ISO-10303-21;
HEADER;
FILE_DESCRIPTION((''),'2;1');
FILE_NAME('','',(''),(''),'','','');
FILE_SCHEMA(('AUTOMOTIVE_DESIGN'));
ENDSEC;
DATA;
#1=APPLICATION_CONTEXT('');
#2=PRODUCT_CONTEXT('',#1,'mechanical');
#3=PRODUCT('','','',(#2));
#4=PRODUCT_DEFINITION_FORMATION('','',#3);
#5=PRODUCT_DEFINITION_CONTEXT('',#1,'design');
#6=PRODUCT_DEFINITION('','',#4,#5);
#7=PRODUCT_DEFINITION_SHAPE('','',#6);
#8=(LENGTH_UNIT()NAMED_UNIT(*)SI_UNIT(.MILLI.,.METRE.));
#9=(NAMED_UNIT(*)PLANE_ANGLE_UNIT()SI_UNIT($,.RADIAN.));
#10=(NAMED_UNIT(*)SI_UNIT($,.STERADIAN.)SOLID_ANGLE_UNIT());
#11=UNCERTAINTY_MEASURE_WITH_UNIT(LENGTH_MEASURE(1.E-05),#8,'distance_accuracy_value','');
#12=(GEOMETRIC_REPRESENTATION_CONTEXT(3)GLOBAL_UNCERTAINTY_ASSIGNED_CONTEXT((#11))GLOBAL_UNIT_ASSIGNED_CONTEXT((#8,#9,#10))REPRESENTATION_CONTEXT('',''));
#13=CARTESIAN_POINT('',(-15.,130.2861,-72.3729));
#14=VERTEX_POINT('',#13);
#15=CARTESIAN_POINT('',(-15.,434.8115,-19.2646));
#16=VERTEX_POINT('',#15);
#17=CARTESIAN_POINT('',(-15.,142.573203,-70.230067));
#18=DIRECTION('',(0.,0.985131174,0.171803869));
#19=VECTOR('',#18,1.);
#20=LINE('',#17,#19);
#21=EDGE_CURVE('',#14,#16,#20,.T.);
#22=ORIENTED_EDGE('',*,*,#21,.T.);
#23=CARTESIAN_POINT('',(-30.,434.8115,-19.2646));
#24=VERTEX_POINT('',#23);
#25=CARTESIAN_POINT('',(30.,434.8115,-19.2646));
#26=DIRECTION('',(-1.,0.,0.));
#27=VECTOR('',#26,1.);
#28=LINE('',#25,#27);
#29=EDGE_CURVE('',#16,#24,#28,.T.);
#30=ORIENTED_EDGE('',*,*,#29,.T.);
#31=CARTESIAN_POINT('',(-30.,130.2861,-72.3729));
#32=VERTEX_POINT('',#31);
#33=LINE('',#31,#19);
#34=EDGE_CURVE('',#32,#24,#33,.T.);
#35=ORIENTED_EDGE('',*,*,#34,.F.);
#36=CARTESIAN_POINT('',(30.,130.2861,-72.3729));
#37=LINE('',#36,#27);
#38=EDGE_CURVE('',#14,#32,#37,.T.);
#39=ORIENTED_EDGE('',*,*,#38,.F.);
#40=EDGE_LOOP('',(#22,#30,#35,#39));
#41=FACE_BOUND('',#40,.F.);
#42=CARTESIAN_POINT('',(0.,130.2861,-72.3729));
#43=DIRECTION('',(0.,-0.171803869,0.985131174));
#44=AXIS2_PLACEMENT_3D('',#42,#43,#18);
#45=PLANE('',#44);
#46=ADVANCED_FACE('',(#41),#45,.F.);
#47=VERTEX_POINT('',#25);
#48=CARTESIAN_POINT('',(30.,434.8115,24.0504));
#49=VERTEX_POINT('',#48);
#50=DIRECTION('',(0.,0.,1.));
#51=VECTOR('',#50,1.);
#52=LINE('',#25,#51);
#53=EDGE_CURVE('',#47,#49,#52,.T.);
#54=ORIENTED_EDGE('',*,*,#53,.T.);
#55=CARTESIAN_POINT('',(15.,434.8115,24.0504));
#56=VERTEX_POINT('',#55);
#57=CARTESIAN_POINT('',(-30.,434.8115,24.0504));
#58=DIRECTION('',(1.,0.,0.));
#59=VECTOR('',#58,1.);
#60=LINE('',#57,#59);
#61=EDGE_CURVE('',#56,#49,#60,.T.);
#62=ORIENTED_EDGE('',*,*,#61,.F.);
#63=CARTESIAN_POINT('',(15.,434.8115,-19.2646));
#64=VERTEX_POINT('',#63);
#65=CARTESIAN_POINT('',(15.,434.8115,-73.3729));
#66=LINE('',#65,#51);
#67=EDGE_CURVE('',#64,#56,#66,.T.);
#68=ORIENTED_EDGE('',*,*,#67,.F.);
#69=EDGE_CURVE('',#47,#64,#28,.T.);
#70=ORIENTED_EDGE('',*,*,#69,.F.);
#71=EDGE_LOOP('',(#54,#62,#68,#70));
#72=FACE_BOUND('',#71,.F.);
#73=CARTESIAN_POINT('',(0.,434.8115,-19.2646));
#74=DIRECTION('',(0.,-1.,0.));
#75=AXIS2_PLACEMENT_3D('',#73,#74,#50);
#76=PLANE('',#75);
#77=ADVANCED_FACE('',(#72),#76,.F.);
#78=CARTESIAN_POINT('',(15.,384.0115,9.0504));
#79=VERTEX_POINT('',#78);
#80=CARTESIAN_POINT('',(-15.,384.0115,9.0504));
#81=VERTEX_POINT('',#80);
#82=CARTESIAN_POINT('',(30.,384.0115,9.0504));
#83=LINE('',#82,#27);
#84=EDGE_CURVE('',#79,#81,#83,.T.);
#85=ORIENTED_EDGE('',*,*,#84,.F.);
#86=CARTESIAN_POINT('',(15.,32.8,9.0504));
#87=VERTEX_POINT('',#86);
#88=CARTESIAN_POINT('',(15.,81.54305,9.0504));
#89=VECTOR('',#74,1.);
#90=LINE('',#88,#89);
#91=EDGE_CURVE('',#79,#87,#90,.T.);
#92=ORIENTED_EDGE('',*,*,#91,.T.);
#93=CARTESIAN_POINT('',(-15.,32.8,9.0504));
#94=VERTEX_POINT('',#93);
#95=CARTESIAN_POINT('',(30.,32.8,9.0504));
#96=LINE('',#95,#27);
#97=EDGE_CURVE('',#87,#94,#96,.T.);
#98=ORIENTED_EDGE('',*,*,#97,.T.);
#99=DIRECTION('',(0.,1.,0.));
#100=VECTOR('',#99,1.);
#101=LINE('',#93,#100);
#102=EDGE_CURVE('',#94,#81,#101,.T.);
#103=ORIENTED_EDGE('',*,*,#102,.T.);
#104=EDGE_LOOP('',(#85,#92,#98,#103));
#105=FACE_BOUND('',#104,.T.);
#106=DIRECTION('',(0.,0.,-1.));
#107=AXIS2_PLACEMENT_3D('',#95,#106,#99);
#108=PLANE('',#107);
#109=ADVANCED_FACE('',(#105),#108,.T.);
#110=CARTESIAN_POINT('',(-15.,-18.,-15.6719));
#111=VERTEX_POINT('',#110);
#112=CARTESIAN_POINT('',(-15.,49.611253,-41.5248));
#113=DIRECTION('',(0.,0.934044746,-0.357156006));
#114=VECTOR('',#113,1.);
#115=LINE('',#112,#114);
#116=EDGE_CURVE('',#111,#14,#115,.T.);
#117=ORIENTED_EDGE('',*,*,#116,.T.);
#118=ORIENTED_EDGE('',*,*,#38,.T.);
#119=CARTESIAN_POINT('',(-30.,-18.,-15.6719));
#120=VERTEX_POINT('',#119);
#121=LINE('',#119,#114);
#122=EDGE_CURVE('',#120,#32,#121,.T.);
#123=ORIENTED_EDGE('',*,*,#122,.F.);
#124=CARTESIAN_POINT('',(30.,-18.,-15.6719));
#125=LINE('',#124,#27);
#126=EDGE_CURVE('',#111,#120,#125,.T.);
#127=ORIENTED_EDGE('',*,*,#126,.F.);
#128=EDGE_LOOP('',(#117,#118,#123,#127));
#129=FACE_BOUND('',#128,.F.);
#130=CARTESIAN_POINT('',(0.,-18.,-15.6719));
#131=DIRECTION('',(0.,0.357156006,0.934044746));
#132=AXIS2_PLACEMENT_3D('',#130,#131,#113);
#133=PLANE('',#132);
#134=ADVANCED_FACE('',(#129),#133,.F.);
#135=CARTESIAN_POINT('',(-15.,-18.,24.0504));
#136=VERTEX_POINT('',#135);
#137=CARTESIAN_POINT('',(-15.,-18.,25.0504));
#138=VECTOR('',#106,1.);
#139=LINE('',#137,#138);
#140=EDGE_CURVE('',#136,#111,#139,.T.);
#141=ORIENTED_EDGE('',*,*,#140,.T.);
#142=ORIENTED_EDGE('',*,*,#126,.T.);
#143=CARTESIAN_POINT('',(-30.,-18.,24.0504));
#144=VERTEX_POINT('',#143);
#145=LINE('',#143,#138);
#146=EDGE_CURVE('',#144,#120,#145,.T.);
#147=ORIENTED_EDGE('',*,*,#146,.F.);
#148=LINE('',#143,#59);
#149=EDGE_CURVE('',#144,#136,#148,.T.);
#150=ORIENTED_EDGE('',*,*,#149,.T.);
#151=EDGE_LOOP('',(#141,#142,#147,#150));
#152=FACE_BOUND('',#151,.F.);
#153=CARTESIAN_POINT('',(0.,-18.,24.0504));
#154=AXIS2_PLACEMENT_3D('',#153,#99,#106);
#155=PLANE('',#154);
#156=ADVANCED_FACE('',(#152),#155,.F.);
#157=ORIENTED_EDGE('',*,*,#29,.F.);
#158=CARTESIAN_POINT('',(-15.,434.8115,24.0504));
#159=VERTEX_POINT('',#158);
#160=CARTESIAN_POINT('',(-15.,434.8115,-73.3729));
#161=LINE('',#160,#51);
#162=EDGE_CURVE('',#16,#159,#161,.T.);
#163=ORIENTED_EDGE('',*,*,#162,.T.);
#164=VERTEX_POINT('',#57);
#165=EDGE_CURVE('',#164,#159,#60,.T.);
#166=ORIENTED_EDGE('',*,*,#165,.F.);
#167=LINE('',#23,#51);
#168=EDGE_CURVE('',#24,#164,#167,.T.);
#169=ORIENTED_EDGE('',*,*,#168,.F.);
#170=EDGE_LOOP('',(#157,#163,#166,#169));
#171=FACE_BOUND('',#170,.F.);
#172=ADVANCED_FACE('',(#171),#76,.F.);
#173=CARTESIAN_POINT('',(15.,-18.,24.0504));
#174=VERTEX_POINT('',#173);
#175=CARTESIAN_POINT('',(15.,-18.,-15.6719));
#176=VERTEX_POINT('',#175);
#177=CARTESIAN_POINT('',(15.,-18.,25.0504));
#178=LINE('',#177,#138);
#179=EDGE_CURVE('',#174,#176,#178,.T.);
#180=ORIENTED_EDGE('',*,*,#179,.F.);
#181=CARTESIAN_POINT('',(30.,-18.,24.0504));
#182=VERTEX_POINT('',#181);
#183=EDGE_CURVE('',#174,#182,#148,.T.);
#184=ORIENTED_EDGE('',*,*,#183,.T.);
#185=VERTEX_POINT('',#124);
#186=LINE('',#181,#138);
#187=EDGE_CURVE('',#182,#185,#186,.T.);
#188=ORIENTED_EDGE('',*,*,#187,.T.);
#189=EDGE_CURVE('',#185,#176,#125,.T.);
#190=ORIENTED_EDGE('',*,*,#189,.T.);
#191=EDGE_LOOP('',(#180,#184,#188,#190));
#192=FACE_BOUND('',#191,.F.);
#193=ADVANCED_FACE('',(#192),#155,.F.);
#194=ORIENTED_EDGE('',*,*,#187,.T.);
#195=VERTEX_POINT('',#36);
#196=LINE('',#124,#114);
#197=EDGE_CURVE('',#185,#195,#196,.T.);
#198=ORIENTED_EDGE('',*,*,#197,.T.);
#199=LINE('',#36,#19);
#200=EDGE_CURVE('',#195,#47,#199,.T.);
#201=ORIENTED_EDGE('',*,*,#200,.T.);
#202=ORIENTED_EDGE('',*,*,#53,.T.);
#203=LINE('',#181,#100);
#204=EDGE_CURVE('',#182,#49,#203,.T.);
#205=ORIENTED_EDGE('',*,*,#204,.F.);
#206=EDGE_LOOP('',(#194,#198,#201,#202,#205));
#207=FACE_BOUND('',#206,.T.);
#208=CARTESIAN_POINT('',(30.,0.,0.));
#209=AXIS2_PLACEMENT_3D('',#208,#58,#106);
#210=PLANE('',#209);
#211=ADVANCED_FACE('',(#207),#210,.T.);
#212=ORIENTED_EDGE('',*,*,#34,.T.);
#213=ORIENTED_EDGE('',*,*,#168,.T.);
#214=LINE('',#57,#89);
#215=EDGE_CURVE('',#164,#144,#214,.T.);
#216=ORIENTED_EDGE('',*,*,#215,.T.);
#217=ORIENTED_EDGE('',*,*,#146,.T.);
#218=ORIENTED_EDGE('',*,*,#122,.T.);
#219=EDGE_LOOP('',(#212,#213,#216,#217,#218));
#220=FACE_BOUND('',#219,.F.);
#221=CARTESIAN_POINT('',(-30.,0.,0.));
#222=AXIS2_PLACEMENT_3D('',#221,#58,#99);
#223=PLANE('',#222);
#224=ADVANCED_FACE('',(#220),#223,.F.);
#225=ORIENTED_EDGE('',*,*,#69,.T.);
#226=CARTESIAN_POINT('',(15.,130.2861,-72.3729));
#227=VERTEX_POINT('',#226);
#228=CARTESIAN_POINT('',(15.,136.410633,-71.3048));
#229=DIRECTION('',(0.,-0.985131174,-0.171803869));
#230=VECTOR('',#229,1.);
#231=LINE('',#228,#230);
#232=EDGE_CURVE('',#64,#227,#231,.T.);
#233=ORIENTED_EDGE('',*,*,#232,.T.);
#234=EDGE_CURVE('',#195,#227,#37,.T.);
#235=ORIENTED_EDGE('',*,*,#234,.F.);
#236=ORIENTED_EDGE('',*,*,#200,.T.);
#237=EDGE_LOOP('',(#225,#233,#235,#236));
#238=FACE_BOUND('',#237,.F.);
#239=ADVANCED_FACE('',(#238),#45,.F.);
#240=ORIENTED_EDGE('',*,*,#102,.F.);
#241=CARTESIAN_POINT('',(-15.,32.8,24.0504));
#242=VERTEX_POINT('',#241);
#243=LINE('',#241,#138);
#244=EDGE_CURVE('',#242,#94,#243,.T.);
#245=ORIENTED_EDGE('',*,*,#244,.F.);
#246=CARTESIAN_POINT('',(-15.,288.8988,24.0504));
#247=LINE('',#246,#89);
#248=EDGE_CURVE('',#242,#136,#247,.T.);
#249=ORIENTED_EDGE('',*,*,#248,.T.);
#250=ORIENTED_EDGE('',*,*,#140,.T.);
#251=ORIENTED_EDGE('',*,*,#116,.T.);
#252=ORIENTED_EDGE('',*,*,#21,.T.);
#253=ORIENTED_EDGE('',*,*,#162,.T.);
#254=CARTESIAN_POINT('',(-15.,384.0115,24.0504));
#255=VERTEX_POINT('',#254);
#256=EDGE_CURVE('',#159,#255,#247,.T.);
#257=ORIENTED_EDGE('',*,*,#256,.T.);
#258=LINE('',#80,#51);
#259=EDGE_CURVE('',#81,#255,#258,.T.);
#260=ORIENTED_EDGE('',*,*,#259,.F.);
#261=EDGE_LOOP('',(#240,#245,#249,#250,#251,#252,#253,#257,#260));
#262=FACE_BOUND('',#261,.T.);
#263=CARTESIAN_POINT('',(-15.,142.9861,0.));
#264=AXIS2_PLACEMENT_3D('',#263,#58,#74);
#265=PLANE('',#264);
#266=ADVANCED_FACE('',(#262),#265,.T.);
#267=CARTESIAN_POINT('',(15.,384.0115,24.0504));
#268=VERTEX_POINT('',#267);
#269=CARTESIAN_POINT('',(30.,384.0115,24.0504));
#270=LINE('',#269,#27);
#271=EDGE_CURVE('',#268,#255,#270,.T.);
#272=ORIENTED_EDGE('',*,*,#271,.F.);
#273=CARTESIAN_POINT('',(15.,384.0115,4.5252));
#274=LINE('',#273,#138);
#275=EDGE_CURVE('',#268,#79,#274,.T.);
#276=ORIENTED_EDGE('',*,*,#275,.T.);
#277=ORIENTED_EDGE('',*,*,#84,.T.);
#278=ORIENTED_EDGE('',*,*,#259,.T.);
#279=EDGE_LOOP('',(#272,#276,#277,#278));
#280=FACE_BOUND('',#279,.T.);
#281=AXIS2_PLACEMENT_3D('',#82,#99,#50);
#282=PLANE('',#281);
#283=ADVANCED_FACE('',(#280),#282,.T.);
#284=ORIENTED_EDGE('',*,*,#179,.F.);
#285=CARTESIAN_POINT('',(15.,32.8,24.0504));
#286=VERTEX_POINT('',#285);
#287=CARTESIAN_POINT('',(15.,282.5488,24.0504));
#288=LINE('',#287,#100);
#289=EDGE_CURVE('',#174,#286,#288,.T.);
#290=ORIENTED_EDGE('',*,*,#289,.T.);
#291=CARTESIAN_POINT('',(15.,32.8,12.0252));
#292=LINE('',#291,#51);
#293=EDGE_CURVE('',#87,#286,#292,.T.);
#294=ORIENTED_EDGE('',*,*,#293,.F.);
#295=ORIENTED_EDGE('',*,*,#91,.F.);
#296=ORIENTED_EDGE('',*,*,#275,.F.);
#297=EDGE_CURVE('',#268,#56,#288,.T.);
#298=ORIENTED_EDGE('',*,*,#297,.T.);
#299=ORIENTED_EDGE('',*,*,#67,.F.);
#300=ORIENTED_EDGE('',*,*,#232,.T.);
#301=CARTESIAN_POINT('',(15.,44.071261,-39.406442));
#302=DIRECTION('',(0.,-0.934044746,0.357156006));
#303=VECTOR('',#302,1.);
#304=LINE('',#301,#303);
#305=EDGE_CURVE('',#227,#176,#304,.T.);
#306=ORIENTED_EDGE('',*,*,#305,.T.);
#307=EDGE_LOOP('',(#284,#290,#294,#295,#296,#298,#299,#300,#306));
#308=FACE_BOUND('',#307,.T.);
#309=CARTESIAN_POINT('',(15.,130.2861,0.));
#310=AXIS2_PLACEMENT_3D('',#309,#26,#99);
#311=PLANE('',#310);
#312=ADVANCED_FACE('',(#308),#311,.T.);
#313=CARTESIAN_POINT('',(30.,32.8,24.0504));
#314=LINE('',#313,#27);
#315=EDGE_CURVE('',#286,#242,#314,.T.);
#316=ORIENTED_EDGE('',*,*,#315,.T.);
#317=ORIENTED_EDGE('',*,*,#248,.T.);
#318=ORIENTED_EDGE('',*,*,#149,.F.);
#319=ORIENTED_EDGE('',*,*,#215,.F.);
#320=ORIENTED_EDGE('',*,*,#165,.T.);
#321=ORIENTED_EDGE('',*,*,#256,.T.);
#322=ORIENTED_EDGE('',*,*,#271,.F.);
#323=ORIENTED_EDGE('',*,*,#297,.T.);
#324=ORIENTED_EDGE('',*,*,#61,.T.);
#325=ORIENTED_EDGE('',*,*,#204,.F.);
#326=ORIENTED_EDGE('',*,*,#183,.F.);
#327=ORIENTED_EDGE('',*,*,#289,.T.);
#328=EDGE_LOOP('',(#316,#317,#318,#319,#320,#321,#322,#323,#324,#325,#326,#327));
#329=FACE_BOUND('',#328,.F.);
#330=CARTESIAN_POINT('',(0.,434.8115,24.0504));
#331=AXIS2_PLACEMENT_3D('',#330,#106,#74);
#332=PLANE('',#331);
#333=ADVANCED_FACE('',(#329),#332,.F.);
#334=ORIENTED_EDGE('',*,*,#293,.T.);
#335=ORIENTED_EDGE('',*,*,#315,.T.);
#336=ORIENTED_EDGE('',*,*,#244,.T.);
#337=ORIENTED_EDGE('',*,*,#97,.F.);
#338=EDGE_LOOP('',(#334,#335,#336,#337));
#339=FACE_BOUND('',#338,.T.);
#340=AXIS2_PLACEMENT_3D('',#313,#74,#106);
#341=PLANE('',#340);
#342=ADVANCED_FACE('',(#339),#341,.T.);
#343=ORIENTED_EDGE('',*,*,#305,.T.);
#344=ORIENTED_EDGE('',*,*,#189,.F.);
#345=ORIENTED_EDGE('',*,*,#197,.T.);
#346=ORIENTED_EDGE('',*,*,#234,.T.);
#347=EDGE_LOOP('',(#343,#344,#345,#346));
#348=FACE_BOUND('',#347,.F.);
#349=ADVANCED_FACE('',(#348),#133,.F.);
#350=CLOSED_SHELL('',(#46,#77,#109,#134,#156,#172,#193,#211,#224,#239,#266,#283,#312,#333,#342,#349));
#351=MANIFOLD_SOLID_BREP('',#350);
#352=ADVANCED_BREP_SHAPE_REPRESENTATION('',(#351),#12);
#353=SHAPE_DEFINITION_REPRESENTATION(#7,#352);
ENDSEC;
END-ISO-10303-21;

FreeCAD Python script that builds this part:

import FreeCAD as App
import Part
import Sketcher

V = App.Vector
Q = App.Units.Quantity

doc = App.newDocument("Part")
body = doc.addObject("PartDesign::Body", "Body")
body.AllowCompound = True

sketch1 = body.newObject("Sketcher::SketchObject", "Sketch")
sketch1.AttachmentSupport = (doc.getObject("YZ_Plane"), [""])
sketch1.MapMode = "FlatFace"
sketch1.addGeometry([
    Part.LineSegment(V(434.8115, -19.2646, 0), V(434.8115, 24.0504, 0)),
    Part.LineSegment(V(434.8115, 24.0504, 0), V(-18, 24.0504, 0)),
    Part.LineSegment(V(-18, 24.0504, 0), V(-18, -15.6719, 0)),
    Part.LineSegment(V(-18, -15.6719, 0), V(130.2861, -72.3729, 0)),
    Part.LineSegment(V(130.2861, -72.3729, 0), V(434.8115, -19.2646, 0)),
], False)
sketch1.addConstraint([
    Sketcher.Constraint("Coincident", 0, 2, 1, 1),
    Sketcher.Constraint("Coincident", 1, 2, 2, 1),
    Sketcher.Constraint("Coincident", 2, 2, 3, 1),
    Sketcher.Constraint("Coincident", 3, 2, 4, 1),
    Sketcher.Constraint("Coincident", 4, 2, 0, 1),
    Sketcher.Constraint("Vertical", 0),
    Sketcher.Constraint("Horizontal", 1),
    Sketcher.Constraint("Vertical", 2),
    Sketcher.Constraint("DistanceY", 0, 1, 0, 2, Q("43.315 mm")),
    Sketcher.Constraint("DistanceX", 1, 2, 1, 1, Q("452.8115 mm")),
    Sketcher.Constraint("DistanceY", 2, 2, 2, 1, Q("39.7223 mm")),
    Sketcher.Constraint("DistanceX", 1, 2, -1, 1, Q("18 mm")),
    Sketcher.Constraint("DistanceY", 3, 2, 2, 2, Q("56.701 mm")),
    Sketcher.Constraint("DistanceY", -1, 1, 0, 2, Q("24.0504 mm")),
    Sketcher.Constraint("Distance", 3, Q("158.757 mm")),
])
pad1 = body.newObject("PartDesign::Pad", "Pad")
pad1.Profile = sketch1
pad1.Length = 60
pad1.Midplane = True

sketch2 = body.newObject("Sketcher::SketchObject", "Sketch001")
sketch2.AttachmentSupport = (doc.getObject("XY_Plane"), [""])
sketch2.MapMode = "FlatFace"
sketch2.addGeometry([
    Part.LineSegment(V(15, 434.8115, 0), V(-15, 434.8115, 0)),
    Part.LineSegment(V(-15, 434.8115, 0), V(-15, -18, 0)),
    Part.LineSegment(V(-15, -18, 0), V(15, -18, 0)),
    Part.LineSegment(V(15, -18, 0), V(15, 434.8115, 0)),
], False)
sketch2.addConstraint([
    Sketcher.Constraint("Coincident", 0, 2, 1, 1),
    Sketcher.Constraint("Coincident", 1, 2, 2, 1),
    Sketcher.Constraint("Coincident", 2, 2, 3, 1),
    Sketcher.Constraint("Coincident", 3, 2, 0, 1),
    Sketcher.Constraint("Horizontal", 0),
    Sketcher.Constraint("Vertical", 1),
    Sketcher.Constraint("Horizontal", 2),
    Sketcher.Constraint("Vertical", 3),
    Sketcher.Constraint("DistanceX", 0, 2, 0, 1, Q("30 mm")),
    Sketcher.Constraint("DistanceX", 0, 2, -1, 1, Q("15 mm")),
    Sketcher.Constraint("DistanceY", 1, 2, -1, 1, Q("18 mm")),
    Sketcher.Constraint("DistanceY", 1, 2, 1, 1, Q("452.8115 mm")),
])
pocket1 = body.newObject("PartDesign::Pocket", "Pocket")
pocket1.Profile = sketch2
pocket1.Type = "ThroughAll"
pocket1.Midplane = True

sketch3 = body.newObject("Sketcher::SketchObject", "Sketch002")
sketch3.AttachmentSupport = (doc.getObject("YZ_Plane"), [""])
sketch3.MapMode = "FlatFace"
sketch3.AttachmentOffset = App.Placement(V(0, 0, 30), App.Rotation())
sketch3.addGeometry([
    Part.LineSegment(V(384.0115, 9.0504, 0), V(384.0115, 24.0504, 0)),
    Part.LineSegment(V(384.0115, 24.0504, 0), V(32.8, 24.0504, 0)),
    Part.LineSegment(V(32.8, 24.0504, 0), V(32.8, 9.0504, 0)),
    Part.LineSegment(V(32.8, 9.0504, 0), V(384.0115, 9.0504, 0)),
], False)
sketch3.addConstraint([
    Sketcher.Constraint("Coincident", 0, 2, 1, 1),
    Sketcher.Constraint("Coincident", 1, 2, 2, 1),
    Sketcher.Constraint("Coincident", 2, 2, 3, 1),
    Sketcher.Constraint("Coincident", 3, 2, 0, 1),
    Sketcher.Constraint("Vertical", 0),
    Sketcher.Constraint("Horizontal", 1),
    Sketcher.Constraint("Vertical", 2),
    Sketcher.Constraint("Horizontal", 3),
    Sketcher.Constraint("DistanceY", 0, 1, 0, 2, Q("15 mm")),
    Sketcher.Constraint("DistanceX", -1, 1, 1, 2, Q("32.8 mm")),
    Sketcher.Constraint("DistanceX", 1, 2, 1, 1, Q("351.2115 mm")),
    Sketcher.Constraint("DistanceY", -1, 1, 0, 2, Q("24.0504 mm")),
])
pad2 = body.newObject("PartDesign::Pad", "Pad001")
pad2.Profile = sketch3
pad2.Length = 45
pad2.Reversed = True

doc.recompute()
